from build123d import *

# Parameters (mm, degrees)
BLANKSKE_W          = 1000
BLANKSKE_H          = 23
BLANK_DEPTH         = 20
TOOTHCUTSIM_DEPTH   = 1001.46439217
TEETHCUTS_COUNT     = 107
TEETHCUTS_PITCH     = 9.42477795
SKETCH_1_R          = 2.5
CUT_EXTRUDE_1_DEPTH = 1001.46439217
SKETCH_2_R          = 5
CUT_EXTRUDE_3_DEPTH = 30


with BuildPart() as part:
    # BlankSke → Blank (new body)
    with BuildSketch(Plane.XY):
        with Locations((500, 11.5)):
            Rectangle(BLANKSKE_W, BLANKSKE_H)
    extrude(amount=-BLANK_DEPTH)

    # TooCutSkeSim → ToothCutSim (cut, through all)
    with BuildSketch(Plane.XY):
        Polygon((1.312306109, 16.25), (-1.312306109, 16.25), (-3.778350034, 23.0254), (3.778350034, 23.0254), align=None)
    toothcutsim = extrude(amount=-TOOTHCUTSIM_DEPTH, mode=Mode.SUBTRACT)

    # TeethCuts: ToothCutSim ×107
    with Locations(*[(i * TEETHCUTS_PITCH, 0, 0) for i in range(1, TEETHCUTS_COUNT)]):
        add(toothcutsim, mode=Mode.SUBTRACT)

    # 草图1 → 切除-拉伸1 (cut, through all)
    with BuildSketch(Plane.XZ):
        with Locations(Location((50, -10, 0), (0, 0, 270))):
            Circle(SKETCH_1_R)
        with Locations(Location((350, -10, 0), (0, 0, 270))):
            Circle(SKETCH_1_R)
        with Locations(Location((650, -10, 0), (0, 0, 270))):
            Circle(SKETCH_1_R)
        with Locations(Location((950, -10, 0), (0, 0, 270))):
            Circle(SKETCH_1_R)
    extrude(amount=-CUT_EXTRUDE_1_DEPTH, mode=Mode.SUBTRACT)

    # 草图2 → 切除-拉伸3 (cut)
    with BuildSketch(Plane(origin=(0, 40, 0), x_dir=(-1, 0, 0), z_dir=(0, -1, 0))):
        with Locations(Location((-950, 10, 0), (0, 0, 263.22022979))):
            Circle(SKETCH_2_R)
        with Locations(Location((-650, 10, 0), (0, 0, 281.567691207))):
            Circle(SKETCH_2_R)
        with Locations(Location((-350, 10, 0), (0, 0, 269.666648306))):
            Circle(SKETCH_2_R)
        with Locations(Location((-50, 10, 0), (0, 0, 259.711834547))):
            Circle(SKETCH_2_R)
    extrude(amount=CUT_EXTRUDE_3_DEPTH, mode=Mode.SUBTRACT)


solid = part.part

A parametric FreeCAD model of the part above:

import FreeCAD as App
import Part
import Sketcher

V = App.Vector
Q = App.Units.Quantity

doc = App.newDocument("Part")
body = doc.addObject("PartDesign::Body", "Body")

# Sketch on XY plane
sketch1 = body.newObject("Sketcher::SketchObject", "Sketch")
sketch1.AttachmentSupport = (doc.getObject("XY_Plane"), [""])
sketch1.MapMode = "FlatFace"
sketch1.addGeometry([
    Part.LineSegment(V(0, 23, 0), V(0, 0, 0)),
    Part.LineSegment(V(0, 0, 0), V(1000, 0, 0)),
    Part.LineSegment(V(1000, 0, 0), V(1000, 23, 0)),
    Part.LineSegment(V(1000, 23, 0), V(0, 23, 0)),
], False)
sketch1.addConstraint([
    Sketcher.Constraint("Coincident", 0, 2, 1, 1),
    Sketcher.Constraint("Coincident", 1, 2, 2, 1),
    Sketcher.Constraint("Coincident", 2, 2, 3, 1),
    Sketcher.Constraint("Coincident", 3, 2, 0, 1),
    Sketcher.Constraint("Vertical", 0),
    Sketcher.Constraint("Horizontal", 1),
    Sketcher.Constraint("Vertical", 2),
    Sketcher.Constraint("Horizontal", 3),
    Sketcher.Constraint("Coincident", 0, 2, -1, 1),
    Sketcher.Constraint("DistanceX", 1, 1, 1, 2, 1000.0),
    Sketcher.Constraint("DistanceY", 0, 2, 0, 1, 23.0),
])
pad1 = body.newObject("PartDesign::Pad", "Pad")
pad1.Profile = sketch1
pad1.Length = 20
pad1.Reversed = True

# Sketch on XY plane
sketch2 = body.newObject("Sketcher::SketchObject", "Sketch001")
sketch2.AttachmentSupport = (doc.getObject("XY_Plane"), [""])
sketch2.MapMode = "FlatFace"
sketch2.addGeometry([
    Part.LineSegment(V(-1.3, 16.2, 0), V(1.3, 16.2, 0)),
    Part.LineSegment(V(1.3, 16.2, 0), V(3.8, 23, 0)),
    Part.LineSegment(V(3.8, 23, 0), V(-3.8, 23, 0)),
    Part.LineSegment(V(-3.8, 23, 0), V(-1.3, 16.2, 0)),
], False)
sketch2.addConstraint([
    Sketcher.Constraint("Coincident", 0, 2, 1, 1),
    Sketcher.Constraint("Coincident", 1, 2, 2, 1),
    Sketcher.Constraint("Coincident", 2, 2, 3, 1),
    Sketcher.Constraint("Coincident", 3, 2, 0, 1),
    Sketcher.Constraint("Horizontal", 0),
    Sketcher.Constraint("Horizontal", 2),
    Sketcher.Constraint("Equal", 1, 3),
    Sketcher.Constraint("Angle", 1, Q("70 deg")),
    Sketcher.Constraint("DistanceY", -1, 1, 0, 2, 16.25),
    Sketcher.Constraint("DistanceX", 2, 2, 2, 1, 7.5567),
    Sketcher.Constraint("DistanceY", -1, 1, 1, 2, 23.0254),
    Sketcher.Constraint("DistanceX", -1, 1, 1, 2, 3.77835),
])
pocket1 = body.newObject("PartDesign::Pocket", "Pocket")
pocket1.Profile = sketch2
pocket1.Type = "ThroughAll"
doc.recompute()

linearpattern = body.newObject("PartDesign::LinearPattern", "LinearPattern")
linearpattern.Originals = [pocket1]
linearpattern.Direction = (doc.getObject("X_Axis"), [""])
linearpattern.Mode = "offset"
linearpattern.Offset = 9.424778
linearpattern.Occurrences = 107
body.Tip = linearpattern

# Sketch on XZ plane
sketch3 = body.newObject("Sketcher::SketchObject", "Sketch002")
sketch3.AttachmentSupport = (doc.getObject("XZ_Plane"), [""])
sketch3.MapMode = "FlatFace"
sketch3.addGeometry([
    Part.Circle(V(50, -10, 0), V(0, 0, 1), 2.5),
    Part.Circle(V(350, -10, 0), V(0, 0, 1), 2.5),
    Part.Circle(V(650, -10, 0), V(0, 0, 1), 2.5),
    Part.Circle(V(950, -10, 0), V(0, 0, 1), 2.5),
], False)
sketch3.addConstraint([
    Sketcher.Constraint("Equal", 0, 1),
    Sketcher.Constraint("Equal", 1, 2),
    Sketcher.Constraint("Equal", 2, 3),
    Sketcher.Constraint("Horizontal", 0, 3, 1, 3),
    Sketcher.Constraint("Horizontal", 1, 3, 2, 3),
    Sketcher.Constraint("Horizontal", 2, 3, 3, 3),
    Sketcher.Constraint("Diameter", 0, 5.0),
    Sketcher.Constraint("DistanceX", -1, 1, 0, 3, 50.0),
    Sketcher.Constraint("DistanceY", 0, 3, -1, 1, 10.0),
    Sketcher.Constraint("DistanceX", -1, 1, 1, 3, 350.0),
    Sketcher.Constraint("DistanceX", -1, 1, 2, 3, 650.0),
    Sketcher.Constraint("DistanceX", -1, 1, 3, 3, 950.0),
])
pocket2 = body.newObject("PartDesign::Pocket", "Pocket001")
pocket2.Profile = sketch3
pocket2.Type = "ThroughAll"

# Sketch on XZ plane
sketch4 = body.newObject("Sketcher::SketchObject", "Sketch003")
sketch4.AttachmentSupport = (doc.getObject("XZ_Plane"), [""])
sketch4.MapMode = "FlatFace"
sketch4.AttachmentOffset = App.Placement(V(0, 0, -40), App.Rotation())
sketch4.addGeometry([
    Part.Circle(V(950, -10, 0), V(0, 0, 1), 5),
    Part.Circle(V(650, -10, 0), V(0, 0, 1), 5),
    Part.Circle(V(350, -10, 0), V(0, 0, 1), 5),
    Part.Circle(V(50, -10, 0), V(0, 0, 1), 5),
], False)
sketch4.addConstraint([
    Sketcher.Constraint("Equal", 0, 1),
    Sketcher.Constraint("Equal", 1, 2),
    Sketcher.Constraint("Equal", 2, 3),
    Sketcher.Constraint("Horizontal", 0, 3, 1, 3),
    Sketcher.Constraint("Horizontal", 1, 3, 2, 3),
    Sketcher.Constraint("Horizontal", 2, 3, 3, 3),
    Sketcher.Constraint("Diameter", 0, 10.0),
    Sketcher.Constraint("DistanceX", -1, 1, 0, 3, 950.0),
    Sketcher.Constraint("DistanceY", 0, 3, -1, 1, 10.0),
    Sketcher.Constraint("DistanceX", -1, 1, 1, 3, 650.0),
    Sketcher.Constraint("DistanceX", -1, 1, 2, 3, 350.0),
    Sketcher.Constraint("DistanceX", -1, 1, 3, 3, 50.0),
])
pocket3 = body.newObject("PartDesign::Pocket", "Pocket002")
pocket3.Profile = sketch4
pocket3.Length = 30
pocket3.Reversed = True

doc.recompute()
